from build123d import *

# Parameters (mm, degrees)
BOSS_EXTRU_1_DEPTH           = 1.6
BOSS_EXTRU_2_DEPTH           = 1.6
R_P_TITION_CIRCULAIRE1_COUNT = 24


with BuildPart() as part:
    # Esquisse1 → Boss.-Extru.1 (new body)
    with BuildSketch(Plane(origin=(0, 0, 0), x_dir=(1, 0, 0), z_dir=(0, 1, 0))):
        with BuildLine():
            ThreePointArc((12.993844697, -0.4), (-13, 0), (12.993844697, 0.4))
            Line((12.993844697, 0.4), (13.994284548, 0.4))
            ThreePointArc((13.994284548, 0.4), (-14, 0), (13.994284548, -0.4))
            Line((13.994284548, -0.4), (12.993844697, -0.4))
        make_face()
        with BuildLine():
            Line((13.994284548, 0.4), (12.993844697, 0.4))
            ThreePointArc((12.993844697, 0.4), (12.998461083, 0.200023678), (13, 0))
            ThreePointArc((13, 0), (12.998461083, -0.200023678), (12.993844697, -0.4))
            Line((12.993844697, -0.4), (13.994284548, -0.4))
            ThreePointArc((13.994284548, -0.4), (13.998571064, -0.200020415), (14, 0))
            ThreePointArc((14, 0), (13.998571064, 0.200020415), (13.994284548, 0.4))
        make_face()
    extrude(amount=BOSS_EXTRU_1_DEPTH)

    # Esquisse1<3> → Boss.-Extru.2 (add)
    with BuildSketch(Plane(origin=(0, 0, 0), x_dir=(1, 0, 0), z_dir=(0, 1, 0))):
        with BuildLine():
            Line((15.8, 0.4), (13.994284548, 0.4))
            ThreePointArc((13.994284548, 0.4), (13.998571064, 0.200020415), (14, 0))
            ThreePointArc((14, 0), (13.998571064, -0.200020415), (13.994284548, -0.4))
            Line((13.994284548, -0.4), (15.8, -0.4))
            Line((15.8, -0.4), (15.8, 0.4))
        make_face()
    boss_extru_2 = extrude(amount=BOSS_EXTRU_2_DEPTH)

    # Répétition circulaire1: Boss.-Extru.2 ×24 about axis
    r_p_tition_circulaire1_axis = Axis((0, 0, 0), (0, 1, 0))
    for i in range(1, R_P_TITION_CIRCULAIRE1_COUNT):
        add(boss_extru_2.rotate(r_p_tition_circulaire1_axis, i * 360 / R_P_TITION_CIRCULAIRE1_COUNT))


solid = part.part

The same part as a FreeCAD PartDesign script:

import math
import FreeCAD as App
import Part
import Sketcher

V = App.Vector

doc = App.newDocument("Part")
body = doc.addObject("PartDesign::Body", "Body")

# Sketch on XZ plane
sketch1 = body.newObject("Sketcher::SketchObject", "Sketch")
sketch1.AttachmentSupport = (doc.getObject("XZ_Plane"), [""])
sketch1.MapMode = "FlatFace"
sketch1.addGeometry([
    Part.ArcOfCircle(Part.Circle(V(0, 0, 0), V(0, 0, 1), 14), math.radians(2), math.radians(358)),  # 0
    Part.ArcOfCircle(Part.Circle(V(0, 0, 0), V(0, 0, 1), 14), math.radians(0), math.radians(1.64)),  # 1
    Part.ArcOfCircle(Part.Circle(V(0, 0, 0), V(0, 0, 1), 14), math.radians(-1.64), math.radians(0)),  # 2
    Part.ArcOfCircle(Part.Circle(V(0, 0, 0), V(0, 0, 1), 13), math.radians(2), math.radians(358)),  # 3
    Part.ArcOfCircle(Part.Circle(V(0, 0, 0), V(0, 0, 1), 13), math.radians(-1.76), math.radians(0)),  # 4
    Part.ArcOfCircle(Part.Circle(V(0, 0, 0), V(0, 0, 1), 13), math.radians(0), math.radians(1.76)),  # 5
], False)
sketch1.addConstraint([
    Sketcher.Constraint("Tangent", 0, 1, 1, 2),
    Sketcher.Constraint("Tangent", 1, 1, 2, 2),
    Sketcher.Constraint("Coincident", 2, 1, 0, 2),
    Sketcher.Constraint("Tangent", 3, 2, 4, 1),
    Sketcher.Constraint("Tangent", 4, 2, 5, 1),
    Sketcher.Constraint("Coincident", 5, 2, 3, 1),
    Sketcher.Constraint("Coincident", 0, 3, -1, 1),
    Sketcher.Constraint("Coincident", 3, 3, -1, 1),
    Sketcher.Constraint("Equal", 0, 1),
    Sketcher.Constraint("Equal", 4, 5),
    Sketcher.Constraint("PointOnObject", 1, 1, -1),
    Sketcher.Constraint("PointOnObject", 4, 2, -1),
    Sketcher.Constraint("Horizontal", 2, 1, 3, 2),
    Sketcher.Constraint("Horizontal", 0, 1, 5, 2),
    Sketcher.Constraint("Vertical", 0, 1, 2, 1),
    Sketcher.Constraint("Radius", 0, 14.0),
    Sketcher.Constraint("Radius", 3, 13.0),
    Sketcher.Constraint("DistanceY", -1, 1, 0, 1, 0.4),
])
pad1 = body.newObject("PartDesign::Pad", "Pad")
pad1.Profile = sketch1
pad1.Length = 1.6
pad1.Reversed = True

# Sketch on XZ plane
sketch2 = body.newObject("Sketcher::SketchObject", "Sketch001")
sketch2.AttachmentSupport = (doc.getObject("XZ_Plane"), [""])
sketch2.MapMode = "FlatFace"
sketch2.addGeometry([
    Part.LineSegment(V(15.8, -0.4, 0), V(13.99, -0.4, 0)),  # 0
    Part.ArcOfCircle(Part.Circle(V(0, 0, 0), V(0, 0, 1), 14), math.radians(-1.64), math.radians(0)),  # 1
    Part.ArcOfCircle(Part.Circle(V(0, 0, 0), V(0, 0, 1), 14), math.radians(0), math.radians(1.64)),  # 2
    Part.LineSegment(V(13.99, 0.4, 0), V(15.8, 0.4, 0)),  # 3
    Part.LineSegment(V(15.8, 0.4, 0), V(15.8, -0.4, 0)),  # 4
], False)
sketch2.addConstraint([
    Sketcher.Constraint("Coincident", 0, 2, 1, 1),
    Sketcher.Constraint("Tangent", 1, 2, 2, 1),
    Sketcher.Constraint("Coincident", 2, 2, 3, 1),
    Sketcher.Constraint("Coincident", 3, 2, 4, 1),
    Sketcher.Constraint("Coincident", 4, 2, 0, 1),
    Sketcher.Constraint("Horizontal", 0),
    Sketcher.Constraint("Horizontal", 3),
    Sketcher.Constraint("Vertical", 4),
    Sketcher.Constraint("Coincident", 1, 3, -1, 1),
    Sketcher.Constraint("Equal", 1, 2),
    Sketcher.Constraint("PointOnObject", 1, 2, -1),
    Sketcher.Constraint("Vertical", 0, 2, 2, 2),
    Sketcher.Constraint("Radius", 1, 14.000002),
    Sketcher.Constraint("DistanceY", 4, 2, 4, 1, 0.8),
    Sketcher.Constraint("DistanceX", -1, 1, 3, 2, 15.8),
])
pad2 = body.newObject("PartDesign::Pad", "Pad001")
pad2.Profile = sketch2
pad2.Length = 1.6
pad2.Reversed = True
doc.recompute()

polarpattern = body.newObject("PartDesign::PolarPattern", "PolarPattern")
polarpattern.Originals = [pad2]
polarpattern.Axis = (doc.getObject("Y_Axis"), [""])
polarpattern.Angle = 360
polarpattern.Occurrences = 24
body.Tip = polarpattern

doc.recompute()
